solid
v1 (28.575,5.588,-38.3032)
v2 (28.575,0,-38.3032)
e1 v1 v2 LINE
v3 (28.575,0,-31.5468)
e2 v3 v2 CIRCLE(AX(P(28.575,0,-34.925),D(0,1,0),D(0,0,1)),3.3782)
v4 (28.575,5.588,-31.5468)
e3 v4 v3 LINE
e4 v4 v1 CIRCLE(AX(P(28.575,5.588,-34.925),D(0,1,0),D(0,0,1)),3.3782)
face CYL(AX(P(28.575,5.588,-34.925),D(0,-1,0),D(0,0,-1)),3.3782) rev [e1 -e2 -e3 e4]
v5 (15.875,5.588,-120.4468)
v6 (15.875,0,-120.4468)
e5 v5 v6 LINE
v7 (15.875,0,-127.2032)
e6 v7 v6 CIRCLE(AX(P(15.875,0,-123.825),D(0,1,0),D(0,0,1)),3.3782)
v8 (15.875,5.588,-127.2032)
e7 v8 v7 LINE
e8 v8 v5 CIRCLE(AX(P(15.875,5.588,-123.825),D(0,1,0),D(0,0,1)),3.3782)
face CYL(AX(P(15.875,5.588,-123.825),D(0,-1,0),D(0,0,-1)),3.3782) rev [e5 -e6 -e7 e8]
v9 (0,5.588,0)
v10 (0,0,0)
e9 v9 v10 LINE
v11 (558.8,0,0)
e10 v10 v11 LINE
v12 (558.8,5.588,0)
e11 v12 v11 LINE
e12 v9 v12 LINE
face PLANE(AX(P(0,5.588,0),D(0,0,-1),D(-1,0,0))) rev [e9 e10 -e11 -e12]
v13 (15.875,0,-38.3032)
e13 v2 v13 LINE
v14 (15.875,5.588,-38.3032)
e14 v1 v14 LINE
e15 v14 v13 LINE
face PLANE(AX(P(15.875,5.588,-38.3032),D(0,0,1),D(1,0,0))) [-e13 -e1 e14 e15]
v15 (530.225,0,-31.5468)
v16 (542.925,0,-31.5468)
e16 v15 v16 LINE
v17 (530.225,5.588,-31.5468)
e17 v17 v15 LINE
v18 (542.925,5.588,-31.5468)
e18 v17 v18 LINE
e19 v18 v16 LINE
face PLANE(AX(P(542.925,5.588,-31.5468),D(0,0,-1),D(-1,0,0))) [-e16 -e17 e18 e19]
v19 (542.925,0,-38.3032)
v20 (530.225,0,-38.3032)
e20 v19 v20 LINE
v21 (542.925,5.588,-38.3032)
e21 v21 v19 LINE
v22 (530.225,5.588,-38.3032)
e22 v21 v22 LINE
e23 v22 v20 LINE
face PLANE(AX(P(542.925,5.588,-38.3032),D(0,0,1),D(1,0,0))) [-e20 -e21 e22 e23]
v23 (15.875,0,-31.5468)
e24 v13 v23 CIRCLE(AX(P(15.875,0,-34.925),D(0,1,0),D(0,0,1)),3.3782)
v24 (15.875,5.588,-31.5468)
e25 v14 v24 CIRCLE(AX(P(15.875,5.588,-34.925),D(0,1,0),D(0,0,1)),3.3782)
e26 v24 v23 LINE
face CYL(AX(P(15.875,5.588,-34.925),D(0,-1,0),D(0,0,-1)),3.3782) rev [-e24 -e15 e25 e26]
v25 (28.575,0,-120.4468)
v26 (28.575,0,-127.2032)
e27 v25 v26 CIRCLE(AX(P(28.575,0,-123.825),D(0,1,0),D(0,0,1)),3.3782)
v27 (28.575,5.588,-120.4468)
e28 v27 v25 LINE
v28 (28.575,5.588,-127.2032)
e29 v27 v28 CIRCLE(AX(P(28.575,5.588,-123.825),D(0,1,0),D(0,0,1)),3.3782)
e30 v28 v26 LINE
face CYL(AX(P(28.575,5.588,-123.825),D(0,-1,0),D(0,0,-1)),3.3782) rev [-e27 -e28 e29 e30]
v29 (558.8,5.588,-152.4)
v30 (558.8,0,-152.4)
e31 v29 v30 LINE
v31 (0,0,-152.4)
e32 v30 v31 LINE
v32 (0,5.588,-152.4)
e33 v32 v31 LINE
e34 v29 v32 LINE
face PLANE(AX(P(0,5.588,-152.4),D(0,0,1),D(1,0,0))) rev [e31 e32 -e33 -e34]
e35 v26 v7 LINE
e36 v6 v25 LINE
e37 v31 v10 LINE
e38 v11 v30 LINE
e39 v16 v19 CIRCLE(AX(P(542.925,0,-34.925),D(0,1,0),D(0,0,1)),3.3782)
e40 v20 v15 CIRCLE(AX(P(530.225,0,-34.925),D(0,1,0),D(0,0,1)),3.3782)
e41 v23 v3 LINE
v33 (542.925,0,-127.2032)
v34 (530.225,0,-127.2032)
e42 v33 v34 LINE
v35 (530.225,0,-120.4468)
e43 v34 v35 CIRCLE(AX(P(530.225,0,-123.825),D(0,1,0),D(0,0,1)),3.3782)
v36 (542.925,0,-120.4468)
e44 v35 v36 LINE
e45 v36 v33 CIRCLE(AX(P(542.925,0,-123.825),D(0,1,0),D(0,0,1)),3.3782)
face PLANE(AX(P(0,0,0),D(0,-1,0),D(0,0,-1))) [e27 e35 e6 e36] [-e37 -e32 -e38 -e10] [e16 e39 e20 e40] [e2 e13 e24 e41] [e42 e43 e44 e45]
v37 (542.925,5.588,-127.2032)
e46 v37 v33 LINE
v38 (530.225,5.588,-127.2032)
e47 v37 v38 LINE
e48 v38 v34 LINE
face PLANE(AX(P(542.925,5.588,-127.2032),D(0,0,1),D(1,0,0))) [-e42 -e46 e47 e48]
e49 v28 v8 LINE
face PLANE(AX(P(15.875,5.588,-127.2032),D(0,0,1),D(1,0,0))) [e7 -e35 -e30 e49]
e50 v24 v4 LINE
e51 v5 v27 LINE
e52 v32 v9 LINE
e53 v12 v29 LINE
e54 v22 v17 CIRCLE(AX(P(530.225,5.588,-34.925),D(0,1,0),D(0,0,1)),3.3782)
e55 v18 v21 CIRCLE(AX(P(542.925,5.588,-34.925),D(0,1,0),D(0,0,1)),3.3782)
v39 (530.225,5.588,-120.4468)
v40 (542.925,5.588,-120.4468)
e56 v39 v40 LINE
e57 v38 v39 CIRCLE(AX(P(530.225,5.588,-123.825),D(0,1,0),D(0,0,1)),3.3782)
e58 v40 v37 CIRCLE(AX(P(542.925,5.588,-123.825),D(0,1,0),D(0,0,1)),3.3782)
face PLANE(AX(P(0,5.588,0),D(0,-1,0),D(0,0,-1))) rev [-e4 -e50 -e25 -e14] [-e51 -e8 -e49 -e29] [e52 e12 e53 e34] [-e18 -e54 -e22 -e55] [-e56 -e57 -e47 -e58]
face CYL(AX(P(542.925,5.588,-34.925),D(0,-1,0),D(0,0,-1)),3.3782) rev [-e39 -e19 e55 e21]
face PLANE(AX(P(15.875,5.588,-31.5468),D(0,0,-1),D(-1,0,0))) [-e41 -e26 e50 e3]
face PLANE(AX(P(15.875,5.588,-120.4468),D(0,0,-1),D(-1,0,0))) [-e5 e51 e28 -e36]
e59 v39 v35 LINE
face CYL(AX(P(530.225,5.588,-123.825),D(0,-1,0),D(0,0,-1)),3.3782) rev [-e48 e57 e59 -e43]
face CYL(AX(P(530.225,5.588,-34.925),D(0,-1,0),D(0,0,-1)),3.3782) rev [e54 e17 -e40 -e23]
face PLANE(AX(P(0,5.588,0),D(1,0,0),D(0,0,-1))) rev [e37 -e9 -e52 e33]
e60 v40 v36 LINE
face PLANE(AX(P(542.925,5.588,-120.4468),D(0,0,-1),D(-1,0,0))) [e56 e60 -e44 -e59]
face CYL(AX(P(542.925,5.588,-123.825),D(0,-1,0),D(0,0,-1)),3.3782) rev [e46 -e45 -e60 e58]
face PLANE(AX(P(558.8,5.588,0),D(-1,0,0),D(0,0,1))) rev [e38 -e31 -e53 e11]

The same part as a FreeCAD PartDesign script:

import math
import FreeCAD as App
import Part
import Sketcher
Q = App.Units.Quantity


def add_polygon(sketch, points):
    """Adds a closed chain of lines whose ends are joined by coincident constraints."""
    first, n = sketch.GeometryCount, len(points)
    for a, b in zip(points, points[1:] + points[:1]):
        sketch.addGeometry(Part.LineSegment(App.Vector(*a, 0), App.Vector(*b, 0)), False)
    for i in range(n):
        sketch.addConstraint(Sketcher.Constraint("Coincident", first + i, 2, first + (i + 1) % n, 1))

doc = App.newDocument("Part")
body = doc.addObject("PartDesign::Body", "Body")

# Sketch on XZ plane
sketch1 = body.newObject("Sketcher::SketchObject", "Sketch")
sketch1.AttachmentSupport = (doc.getObject("XZ_Plane"), [""])
sketch1.MapMode = "FlatFace"
add_polygon(sketch1, [(0, -152.4), (0, 0), (558.8, 0), (558.8, -152.4)])  # lines 0-3
sketch1.addGeometry(Part.ArcOfCircle(Part.Circle(App.Vector(15.9, -34.9, 0), App.Vector(0, 0, 1), 3.4), math.radians(90), math.radians(270)), False)  # 4
sketch1.addGeometry(Part.LineSegment(App.Vector(15.9, -38.3, 0), App.Vector(28.6, -38.3, 0)), False)  # 5
sketch1.addGeometry(Part.ArcOfCircle(Part.Circle(App.Vector(28.6, -34.9, 0), App.Vector(0, 0, 1), 3.4), math.radians(-90), math.radians(90)), False)  # 6
sketch1.addGeometry(Part.LineSegment(App.Vector(28.6, -31.5, 0), App.Vector(15.9, -31.5, 0)), False)  # 7
sketch1.addGeometry(Part.ArcOfCircle(Part.Circle(App.Vector(542.9, -34.9, 0), App.Vector(0, 0, 1), 3.4), math.radians(-90), math.radians(90)), False)  # 8
sketch1.addGeometry(Part.LineSegment(App.Vector(542.9, -31.5, 0), App.Vector(530.2, -31.5, 0)), False)  # 9
sketch1.addGeometry(Part.ArcOfCircle(Part.Circle(App.Vector(530.2, -34.9, 0), App.Vector(0, 0, 1), 3.4), math.radians(90), math.radians(270)), False)  # 10
sketch1.addGeometry(Part.LineSegment(App.Vector(530.2, -38.3, 0), App.Vector(542.9, -38.3, 0)), False)  # 11
sketch1.addGeometry(Part.ArcOfCircle(Part.Circle(App.Vector(15.9, -123.8, 0), App.Vector(0, 0, 1), 3.4), math.radians(90), math.radians(270)), False)  # 12
sketch1.addGeometry(Part.LineSegment(App.Vector(15.9, -127.2, 0), App.Vector(28.6, -127.2, 0)), False)  # 13
sketch1.addGeometry(Part.ArcOfCircle(Part.Circle(App.Vector(28.6, -123.8, 0), App.Vector(0, 0, 1), 3.4), math.radians(-90), math.radians(90)), False)  # 14
sketch1.addGeometry(Part.LineSegment(App.Vector(28.6, -120.4, 0), App.Vector(15.9, -120.4, 0)), False)  # 15
sketch1.addGeometry(Part.ArcOfCircle(Part.Circle(App.Vector(542.9, -123.8, 0), App.Vector(0, 0, 1), 3.4), math.radians(-90), math.radians(90)), False)  # 16
sketch1.addGeometry(Part.LineSegment(App.Vector(542.9, -120.4, 0), App.Vector(530.2, -120.4, 0)), False)  # 17
sketch1.addGeometry(Part.ArcOfCircle(Part.Circle(App.Vector(530.2, -123.8, 0), App.Vector(0, 0, 1), 3.4), math.radians(90), math.radians(270)), False)  # 18
sketch1.addGeometry(Part.LineSegment(App.Vector(530.2, -127.2, 0), App.Vector(542.9, -127.2, 0)), False)  # 19
sketch1.addConstraint(Sketcher.Constraint("Tangent", 4, 2, 5, 1))
sketch1.addConstraint(Sketcher.Constraint("Tangent", 5, 2, 6, 1))
sketch1.addConstraint(Sketcher.Constraint("Tangent", 6, 2, 7, 1))
sketch1.addConstraint(Sketcher.Constraint("Tangent", 7, 2, 4, 1))
sketch1.addConstraint(Sketcher.Constraint("Tangent", 8, 2, 9, 1))
sketch1.addConstraint(Sketcher.Constraint("Tangent", 9, 2, 10, 1))
sketch1.addConstraint(Sketcher.Constraint("Tangent", 10, 2, 11, 1))
sketch1.addConstraint(Sketcher.Constraint("Tangent", 11, 2, 8, 1))
sketch1.addConstraint(Sketcher.Constraint("Tangent", 12, 2, 13, 1))
sketch1.addConstraint(Sketcher.Constraint("Tangent", 13, 2, 14, 1))
sketch1.addConstraint(Sketcher.Constraint("Tangent", 14, 2, 15, 1))
sketch1.addConstraint(Sketcher.Constraint("Tangent", 15, 2, 12, 1))
sketch1.addConstraint(Sketcher.Constraint("Tangent", 16, 2, 17, 1))
sketch1.addConstraint(Sketcher.Constraint("Tangent", 17, 2, 18, 1))
sketch1.addConstraint(Sketcher.Constraint("Tangent", 18, 2, 19, 1))
sketch1.addConstraint(Sketcher.Constraint("Tangent", 19, 2, 16, 1))
sketch1.addConstraint(Sketcher.Constraint("Vertical", 0))
sketch1.addConstraint(Sketcher.Constraint("Horizontal", 1))
sketch1.addConstraint(Sketcher.Constraint("Vertical", 2))
sketch1.addConstraint(Sketcher.Constraint("Horizontal", 3))
sketch1.addConstraint(Sketcher.Constraint("Horizontal", 5))
sketch1.addConstraint(Sketcher.Constraint("Horizontal", 7))
sketch1.addConstraint(Sketcher.Constraint("Horizontal", 9))
sketch1.addConstraint(Sketcher.Constraint("Horizontal", 11))
sketch1.addConstraint(Sketcher.Constraint("Horizontal", 13))
sketch1.addConstraint(Sketcher.Constraint("Horizontal", 15))
sketch1.addConstraint(Sketcher.Constraint("Horizontal", 17))
sketch1.addConstraint(Sketcher.Constraint("Horizontal", 19))
sketch1.addConstraint(Sketcher.Constraint("Coincident", 0, 2, -1, 1))
sketch1.addConstraint(Sketcher.Constraint("Equal", 6, 8))
sketch1.addConstraint(Sketcher.Constraint("Equal", 10, 12))
sketch1.addConstraint(Sketcher.Constraint("Equal", 14, 16))
sketch1.addConstraint(Sketcher.Constraint("Horizontal", 6, 3, 8, 3))
sketch1.addConstraint(Sketcher.Constraint("Horizontal", 14, 3, 16, 3))
sketch1.addConstraint(Sketcher.Constraint("Vertical", 4, 3, 12, 3))
sketch1.addConstraint(Sketcher.Constraint("Vertical", 6, 3, 14, 3))
sketch1.addConstraint(Sketcher.Constraint("Vertical", 8, 3, 16, 3))
sketch1.addConstraint(Sketcher.Constraint("Vertical", 10, 3, 18, 3))
sketch1.addConstraint(Sketcher.Constraint("Equal", 7, 9))
sketch1.addConstraint(Sketcher.Constraint("DistanceX", 1, 1, 1, 2, Q("22 in")))
sketch1.addConstraint(Sketcher.Constraint("DistanceY", 0, 1, 0, 2, Q("6 in")))
sketch1.addConstraint(Sketcher.Constraint("DistanceX", 5, 1, 5, 2, Q("0.5 in")))
sketch1.addConstraint(Sketcher.Constraint("Radius", 4, Q("0.133 in")))
sketch1.addConstraint(Sketcher.Constraint("DistanceY", 12, 3, 4, 3, Q("3.5 in")))
sketch1.addConstraint(Sketcher.Constraint("DistanceX", 6, 3, 8, 3, Q("20.25 in")))
sketch1.addConstraint(Sketcher.Constraint("DistanceX", -1, 1, 4, 3, Q("0.625 in")))
sketch1.addConstraint(Sketcher.Constraint("DistanceY", 4, 3, -1, 1, Q("1.375 in")))
pad1 = body.newObject("PartDesign::Pad", "Pad")
pad1.Profile = sketch1
pad1.Length = Q("0.22 in")
pad1.Reversed = True

doc.recompute()
